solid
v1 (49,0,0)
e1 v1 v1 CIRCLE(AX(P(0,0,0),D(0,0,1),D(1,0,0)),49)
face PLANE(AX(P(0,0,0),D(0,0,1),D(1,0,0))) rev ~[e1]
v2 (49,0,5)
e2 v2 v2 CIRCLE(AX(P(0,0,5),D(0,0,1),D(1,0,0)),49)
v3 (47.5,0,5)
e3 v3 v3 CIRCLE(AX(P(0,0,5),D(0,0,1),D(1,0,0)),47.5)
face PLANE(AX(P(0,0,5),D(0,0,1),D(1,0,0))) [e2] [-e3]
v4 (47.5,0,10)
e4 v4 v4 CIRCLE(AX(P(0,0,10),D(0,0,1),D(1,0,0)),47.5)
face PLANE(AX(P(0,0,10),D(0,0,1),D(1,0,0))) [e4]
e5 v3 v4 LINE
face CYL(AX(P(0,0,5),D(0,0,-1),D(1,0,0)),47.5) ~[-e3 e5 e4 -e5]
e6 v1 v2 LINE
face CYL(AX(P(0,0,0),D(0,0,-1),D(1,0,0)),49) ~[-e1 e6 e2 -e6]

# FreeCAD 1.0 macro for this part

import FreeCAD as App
import Part
import Sketcher
from FreeCAD import Vector
Q = App.Units.Quantity

doc = App.newDocument("Part")
params = doc.addObject("Spreadsheet::Sheet", "Params")
for row, (alias, value) in enumerate([
    ("sketch1_diameter", "98 mm"),
    ("pad1_length", "5 mm"),
    ("sketch2_diameter", "95 mm"),
    ("pad2_length", "5 mm"),
], start=1):
    params.set(f"A{row}", alias)
    params.set(f"B{row}", "=" + value)
    params.setAlias(f"B{row}", alias)

body = doc.addObject("PartDesign::Body", "Body")

sketch1 = doc.addObject("Sketcher::SketchObject", "Sketch")
body.addObject(sketch1)
sketch1.AttachmentSupport = (doc.XY_Plane, [""])
sketch1.MapMode = "FlatFace"
sketch1.addGeometry(Part.Circle(Vector(0, 0, 0), Vector(0, 0, 1), 49), False)
sketch1.addConstraint([
    Sketcher.Constraint("Coincident", 0, 3, -1, 1),
    Sketcher.Constraint("Diameter", 0, Q("98 mm")),
])
sketch1.setExpression("Constraints[1]", "Params.sketch1_diameter")
pad1 = doc.addObject("PartDesign::Pad", "Pad")
body.addObject(pad1)
pad1.Profile = sketch1
pad1.setExpression("Length", "Params.pad1_length")

sketch2 = doc.addObject("Sketcher::SketchObject", "Sketch001")
body.addObject(sketch2)
sketch2.AttachmentSupport = (doc.XY_Plane, [""])
sketch2.MapMode = "FlatFace"
sketch2.AttachmentOffset = App.Placement(Vector(0, 0, 5), App.Rotation())
sketch2.addGeometry(Part.Circle(Vector(0, 0, 0), Vector(0, 0, 1), 47.5), False)
sketch2.addConstraint([
    Sketcher.Constraint("Coincident", 0, 3, -1, 1),
    Sketcher.Constraint("Diameter", 0, Q("95 mm")),
])
sketch2.setExpression("Constraints[1]", "Params.sketch2_diameter")
pad2 = doc.addObject("PartDesign::Pad", "Pad001")
body.addObject(pad2)
pad2.Profile = sketch2
pad2.setExpression("Length", "Params.pad2_length")

doc.recompute()
